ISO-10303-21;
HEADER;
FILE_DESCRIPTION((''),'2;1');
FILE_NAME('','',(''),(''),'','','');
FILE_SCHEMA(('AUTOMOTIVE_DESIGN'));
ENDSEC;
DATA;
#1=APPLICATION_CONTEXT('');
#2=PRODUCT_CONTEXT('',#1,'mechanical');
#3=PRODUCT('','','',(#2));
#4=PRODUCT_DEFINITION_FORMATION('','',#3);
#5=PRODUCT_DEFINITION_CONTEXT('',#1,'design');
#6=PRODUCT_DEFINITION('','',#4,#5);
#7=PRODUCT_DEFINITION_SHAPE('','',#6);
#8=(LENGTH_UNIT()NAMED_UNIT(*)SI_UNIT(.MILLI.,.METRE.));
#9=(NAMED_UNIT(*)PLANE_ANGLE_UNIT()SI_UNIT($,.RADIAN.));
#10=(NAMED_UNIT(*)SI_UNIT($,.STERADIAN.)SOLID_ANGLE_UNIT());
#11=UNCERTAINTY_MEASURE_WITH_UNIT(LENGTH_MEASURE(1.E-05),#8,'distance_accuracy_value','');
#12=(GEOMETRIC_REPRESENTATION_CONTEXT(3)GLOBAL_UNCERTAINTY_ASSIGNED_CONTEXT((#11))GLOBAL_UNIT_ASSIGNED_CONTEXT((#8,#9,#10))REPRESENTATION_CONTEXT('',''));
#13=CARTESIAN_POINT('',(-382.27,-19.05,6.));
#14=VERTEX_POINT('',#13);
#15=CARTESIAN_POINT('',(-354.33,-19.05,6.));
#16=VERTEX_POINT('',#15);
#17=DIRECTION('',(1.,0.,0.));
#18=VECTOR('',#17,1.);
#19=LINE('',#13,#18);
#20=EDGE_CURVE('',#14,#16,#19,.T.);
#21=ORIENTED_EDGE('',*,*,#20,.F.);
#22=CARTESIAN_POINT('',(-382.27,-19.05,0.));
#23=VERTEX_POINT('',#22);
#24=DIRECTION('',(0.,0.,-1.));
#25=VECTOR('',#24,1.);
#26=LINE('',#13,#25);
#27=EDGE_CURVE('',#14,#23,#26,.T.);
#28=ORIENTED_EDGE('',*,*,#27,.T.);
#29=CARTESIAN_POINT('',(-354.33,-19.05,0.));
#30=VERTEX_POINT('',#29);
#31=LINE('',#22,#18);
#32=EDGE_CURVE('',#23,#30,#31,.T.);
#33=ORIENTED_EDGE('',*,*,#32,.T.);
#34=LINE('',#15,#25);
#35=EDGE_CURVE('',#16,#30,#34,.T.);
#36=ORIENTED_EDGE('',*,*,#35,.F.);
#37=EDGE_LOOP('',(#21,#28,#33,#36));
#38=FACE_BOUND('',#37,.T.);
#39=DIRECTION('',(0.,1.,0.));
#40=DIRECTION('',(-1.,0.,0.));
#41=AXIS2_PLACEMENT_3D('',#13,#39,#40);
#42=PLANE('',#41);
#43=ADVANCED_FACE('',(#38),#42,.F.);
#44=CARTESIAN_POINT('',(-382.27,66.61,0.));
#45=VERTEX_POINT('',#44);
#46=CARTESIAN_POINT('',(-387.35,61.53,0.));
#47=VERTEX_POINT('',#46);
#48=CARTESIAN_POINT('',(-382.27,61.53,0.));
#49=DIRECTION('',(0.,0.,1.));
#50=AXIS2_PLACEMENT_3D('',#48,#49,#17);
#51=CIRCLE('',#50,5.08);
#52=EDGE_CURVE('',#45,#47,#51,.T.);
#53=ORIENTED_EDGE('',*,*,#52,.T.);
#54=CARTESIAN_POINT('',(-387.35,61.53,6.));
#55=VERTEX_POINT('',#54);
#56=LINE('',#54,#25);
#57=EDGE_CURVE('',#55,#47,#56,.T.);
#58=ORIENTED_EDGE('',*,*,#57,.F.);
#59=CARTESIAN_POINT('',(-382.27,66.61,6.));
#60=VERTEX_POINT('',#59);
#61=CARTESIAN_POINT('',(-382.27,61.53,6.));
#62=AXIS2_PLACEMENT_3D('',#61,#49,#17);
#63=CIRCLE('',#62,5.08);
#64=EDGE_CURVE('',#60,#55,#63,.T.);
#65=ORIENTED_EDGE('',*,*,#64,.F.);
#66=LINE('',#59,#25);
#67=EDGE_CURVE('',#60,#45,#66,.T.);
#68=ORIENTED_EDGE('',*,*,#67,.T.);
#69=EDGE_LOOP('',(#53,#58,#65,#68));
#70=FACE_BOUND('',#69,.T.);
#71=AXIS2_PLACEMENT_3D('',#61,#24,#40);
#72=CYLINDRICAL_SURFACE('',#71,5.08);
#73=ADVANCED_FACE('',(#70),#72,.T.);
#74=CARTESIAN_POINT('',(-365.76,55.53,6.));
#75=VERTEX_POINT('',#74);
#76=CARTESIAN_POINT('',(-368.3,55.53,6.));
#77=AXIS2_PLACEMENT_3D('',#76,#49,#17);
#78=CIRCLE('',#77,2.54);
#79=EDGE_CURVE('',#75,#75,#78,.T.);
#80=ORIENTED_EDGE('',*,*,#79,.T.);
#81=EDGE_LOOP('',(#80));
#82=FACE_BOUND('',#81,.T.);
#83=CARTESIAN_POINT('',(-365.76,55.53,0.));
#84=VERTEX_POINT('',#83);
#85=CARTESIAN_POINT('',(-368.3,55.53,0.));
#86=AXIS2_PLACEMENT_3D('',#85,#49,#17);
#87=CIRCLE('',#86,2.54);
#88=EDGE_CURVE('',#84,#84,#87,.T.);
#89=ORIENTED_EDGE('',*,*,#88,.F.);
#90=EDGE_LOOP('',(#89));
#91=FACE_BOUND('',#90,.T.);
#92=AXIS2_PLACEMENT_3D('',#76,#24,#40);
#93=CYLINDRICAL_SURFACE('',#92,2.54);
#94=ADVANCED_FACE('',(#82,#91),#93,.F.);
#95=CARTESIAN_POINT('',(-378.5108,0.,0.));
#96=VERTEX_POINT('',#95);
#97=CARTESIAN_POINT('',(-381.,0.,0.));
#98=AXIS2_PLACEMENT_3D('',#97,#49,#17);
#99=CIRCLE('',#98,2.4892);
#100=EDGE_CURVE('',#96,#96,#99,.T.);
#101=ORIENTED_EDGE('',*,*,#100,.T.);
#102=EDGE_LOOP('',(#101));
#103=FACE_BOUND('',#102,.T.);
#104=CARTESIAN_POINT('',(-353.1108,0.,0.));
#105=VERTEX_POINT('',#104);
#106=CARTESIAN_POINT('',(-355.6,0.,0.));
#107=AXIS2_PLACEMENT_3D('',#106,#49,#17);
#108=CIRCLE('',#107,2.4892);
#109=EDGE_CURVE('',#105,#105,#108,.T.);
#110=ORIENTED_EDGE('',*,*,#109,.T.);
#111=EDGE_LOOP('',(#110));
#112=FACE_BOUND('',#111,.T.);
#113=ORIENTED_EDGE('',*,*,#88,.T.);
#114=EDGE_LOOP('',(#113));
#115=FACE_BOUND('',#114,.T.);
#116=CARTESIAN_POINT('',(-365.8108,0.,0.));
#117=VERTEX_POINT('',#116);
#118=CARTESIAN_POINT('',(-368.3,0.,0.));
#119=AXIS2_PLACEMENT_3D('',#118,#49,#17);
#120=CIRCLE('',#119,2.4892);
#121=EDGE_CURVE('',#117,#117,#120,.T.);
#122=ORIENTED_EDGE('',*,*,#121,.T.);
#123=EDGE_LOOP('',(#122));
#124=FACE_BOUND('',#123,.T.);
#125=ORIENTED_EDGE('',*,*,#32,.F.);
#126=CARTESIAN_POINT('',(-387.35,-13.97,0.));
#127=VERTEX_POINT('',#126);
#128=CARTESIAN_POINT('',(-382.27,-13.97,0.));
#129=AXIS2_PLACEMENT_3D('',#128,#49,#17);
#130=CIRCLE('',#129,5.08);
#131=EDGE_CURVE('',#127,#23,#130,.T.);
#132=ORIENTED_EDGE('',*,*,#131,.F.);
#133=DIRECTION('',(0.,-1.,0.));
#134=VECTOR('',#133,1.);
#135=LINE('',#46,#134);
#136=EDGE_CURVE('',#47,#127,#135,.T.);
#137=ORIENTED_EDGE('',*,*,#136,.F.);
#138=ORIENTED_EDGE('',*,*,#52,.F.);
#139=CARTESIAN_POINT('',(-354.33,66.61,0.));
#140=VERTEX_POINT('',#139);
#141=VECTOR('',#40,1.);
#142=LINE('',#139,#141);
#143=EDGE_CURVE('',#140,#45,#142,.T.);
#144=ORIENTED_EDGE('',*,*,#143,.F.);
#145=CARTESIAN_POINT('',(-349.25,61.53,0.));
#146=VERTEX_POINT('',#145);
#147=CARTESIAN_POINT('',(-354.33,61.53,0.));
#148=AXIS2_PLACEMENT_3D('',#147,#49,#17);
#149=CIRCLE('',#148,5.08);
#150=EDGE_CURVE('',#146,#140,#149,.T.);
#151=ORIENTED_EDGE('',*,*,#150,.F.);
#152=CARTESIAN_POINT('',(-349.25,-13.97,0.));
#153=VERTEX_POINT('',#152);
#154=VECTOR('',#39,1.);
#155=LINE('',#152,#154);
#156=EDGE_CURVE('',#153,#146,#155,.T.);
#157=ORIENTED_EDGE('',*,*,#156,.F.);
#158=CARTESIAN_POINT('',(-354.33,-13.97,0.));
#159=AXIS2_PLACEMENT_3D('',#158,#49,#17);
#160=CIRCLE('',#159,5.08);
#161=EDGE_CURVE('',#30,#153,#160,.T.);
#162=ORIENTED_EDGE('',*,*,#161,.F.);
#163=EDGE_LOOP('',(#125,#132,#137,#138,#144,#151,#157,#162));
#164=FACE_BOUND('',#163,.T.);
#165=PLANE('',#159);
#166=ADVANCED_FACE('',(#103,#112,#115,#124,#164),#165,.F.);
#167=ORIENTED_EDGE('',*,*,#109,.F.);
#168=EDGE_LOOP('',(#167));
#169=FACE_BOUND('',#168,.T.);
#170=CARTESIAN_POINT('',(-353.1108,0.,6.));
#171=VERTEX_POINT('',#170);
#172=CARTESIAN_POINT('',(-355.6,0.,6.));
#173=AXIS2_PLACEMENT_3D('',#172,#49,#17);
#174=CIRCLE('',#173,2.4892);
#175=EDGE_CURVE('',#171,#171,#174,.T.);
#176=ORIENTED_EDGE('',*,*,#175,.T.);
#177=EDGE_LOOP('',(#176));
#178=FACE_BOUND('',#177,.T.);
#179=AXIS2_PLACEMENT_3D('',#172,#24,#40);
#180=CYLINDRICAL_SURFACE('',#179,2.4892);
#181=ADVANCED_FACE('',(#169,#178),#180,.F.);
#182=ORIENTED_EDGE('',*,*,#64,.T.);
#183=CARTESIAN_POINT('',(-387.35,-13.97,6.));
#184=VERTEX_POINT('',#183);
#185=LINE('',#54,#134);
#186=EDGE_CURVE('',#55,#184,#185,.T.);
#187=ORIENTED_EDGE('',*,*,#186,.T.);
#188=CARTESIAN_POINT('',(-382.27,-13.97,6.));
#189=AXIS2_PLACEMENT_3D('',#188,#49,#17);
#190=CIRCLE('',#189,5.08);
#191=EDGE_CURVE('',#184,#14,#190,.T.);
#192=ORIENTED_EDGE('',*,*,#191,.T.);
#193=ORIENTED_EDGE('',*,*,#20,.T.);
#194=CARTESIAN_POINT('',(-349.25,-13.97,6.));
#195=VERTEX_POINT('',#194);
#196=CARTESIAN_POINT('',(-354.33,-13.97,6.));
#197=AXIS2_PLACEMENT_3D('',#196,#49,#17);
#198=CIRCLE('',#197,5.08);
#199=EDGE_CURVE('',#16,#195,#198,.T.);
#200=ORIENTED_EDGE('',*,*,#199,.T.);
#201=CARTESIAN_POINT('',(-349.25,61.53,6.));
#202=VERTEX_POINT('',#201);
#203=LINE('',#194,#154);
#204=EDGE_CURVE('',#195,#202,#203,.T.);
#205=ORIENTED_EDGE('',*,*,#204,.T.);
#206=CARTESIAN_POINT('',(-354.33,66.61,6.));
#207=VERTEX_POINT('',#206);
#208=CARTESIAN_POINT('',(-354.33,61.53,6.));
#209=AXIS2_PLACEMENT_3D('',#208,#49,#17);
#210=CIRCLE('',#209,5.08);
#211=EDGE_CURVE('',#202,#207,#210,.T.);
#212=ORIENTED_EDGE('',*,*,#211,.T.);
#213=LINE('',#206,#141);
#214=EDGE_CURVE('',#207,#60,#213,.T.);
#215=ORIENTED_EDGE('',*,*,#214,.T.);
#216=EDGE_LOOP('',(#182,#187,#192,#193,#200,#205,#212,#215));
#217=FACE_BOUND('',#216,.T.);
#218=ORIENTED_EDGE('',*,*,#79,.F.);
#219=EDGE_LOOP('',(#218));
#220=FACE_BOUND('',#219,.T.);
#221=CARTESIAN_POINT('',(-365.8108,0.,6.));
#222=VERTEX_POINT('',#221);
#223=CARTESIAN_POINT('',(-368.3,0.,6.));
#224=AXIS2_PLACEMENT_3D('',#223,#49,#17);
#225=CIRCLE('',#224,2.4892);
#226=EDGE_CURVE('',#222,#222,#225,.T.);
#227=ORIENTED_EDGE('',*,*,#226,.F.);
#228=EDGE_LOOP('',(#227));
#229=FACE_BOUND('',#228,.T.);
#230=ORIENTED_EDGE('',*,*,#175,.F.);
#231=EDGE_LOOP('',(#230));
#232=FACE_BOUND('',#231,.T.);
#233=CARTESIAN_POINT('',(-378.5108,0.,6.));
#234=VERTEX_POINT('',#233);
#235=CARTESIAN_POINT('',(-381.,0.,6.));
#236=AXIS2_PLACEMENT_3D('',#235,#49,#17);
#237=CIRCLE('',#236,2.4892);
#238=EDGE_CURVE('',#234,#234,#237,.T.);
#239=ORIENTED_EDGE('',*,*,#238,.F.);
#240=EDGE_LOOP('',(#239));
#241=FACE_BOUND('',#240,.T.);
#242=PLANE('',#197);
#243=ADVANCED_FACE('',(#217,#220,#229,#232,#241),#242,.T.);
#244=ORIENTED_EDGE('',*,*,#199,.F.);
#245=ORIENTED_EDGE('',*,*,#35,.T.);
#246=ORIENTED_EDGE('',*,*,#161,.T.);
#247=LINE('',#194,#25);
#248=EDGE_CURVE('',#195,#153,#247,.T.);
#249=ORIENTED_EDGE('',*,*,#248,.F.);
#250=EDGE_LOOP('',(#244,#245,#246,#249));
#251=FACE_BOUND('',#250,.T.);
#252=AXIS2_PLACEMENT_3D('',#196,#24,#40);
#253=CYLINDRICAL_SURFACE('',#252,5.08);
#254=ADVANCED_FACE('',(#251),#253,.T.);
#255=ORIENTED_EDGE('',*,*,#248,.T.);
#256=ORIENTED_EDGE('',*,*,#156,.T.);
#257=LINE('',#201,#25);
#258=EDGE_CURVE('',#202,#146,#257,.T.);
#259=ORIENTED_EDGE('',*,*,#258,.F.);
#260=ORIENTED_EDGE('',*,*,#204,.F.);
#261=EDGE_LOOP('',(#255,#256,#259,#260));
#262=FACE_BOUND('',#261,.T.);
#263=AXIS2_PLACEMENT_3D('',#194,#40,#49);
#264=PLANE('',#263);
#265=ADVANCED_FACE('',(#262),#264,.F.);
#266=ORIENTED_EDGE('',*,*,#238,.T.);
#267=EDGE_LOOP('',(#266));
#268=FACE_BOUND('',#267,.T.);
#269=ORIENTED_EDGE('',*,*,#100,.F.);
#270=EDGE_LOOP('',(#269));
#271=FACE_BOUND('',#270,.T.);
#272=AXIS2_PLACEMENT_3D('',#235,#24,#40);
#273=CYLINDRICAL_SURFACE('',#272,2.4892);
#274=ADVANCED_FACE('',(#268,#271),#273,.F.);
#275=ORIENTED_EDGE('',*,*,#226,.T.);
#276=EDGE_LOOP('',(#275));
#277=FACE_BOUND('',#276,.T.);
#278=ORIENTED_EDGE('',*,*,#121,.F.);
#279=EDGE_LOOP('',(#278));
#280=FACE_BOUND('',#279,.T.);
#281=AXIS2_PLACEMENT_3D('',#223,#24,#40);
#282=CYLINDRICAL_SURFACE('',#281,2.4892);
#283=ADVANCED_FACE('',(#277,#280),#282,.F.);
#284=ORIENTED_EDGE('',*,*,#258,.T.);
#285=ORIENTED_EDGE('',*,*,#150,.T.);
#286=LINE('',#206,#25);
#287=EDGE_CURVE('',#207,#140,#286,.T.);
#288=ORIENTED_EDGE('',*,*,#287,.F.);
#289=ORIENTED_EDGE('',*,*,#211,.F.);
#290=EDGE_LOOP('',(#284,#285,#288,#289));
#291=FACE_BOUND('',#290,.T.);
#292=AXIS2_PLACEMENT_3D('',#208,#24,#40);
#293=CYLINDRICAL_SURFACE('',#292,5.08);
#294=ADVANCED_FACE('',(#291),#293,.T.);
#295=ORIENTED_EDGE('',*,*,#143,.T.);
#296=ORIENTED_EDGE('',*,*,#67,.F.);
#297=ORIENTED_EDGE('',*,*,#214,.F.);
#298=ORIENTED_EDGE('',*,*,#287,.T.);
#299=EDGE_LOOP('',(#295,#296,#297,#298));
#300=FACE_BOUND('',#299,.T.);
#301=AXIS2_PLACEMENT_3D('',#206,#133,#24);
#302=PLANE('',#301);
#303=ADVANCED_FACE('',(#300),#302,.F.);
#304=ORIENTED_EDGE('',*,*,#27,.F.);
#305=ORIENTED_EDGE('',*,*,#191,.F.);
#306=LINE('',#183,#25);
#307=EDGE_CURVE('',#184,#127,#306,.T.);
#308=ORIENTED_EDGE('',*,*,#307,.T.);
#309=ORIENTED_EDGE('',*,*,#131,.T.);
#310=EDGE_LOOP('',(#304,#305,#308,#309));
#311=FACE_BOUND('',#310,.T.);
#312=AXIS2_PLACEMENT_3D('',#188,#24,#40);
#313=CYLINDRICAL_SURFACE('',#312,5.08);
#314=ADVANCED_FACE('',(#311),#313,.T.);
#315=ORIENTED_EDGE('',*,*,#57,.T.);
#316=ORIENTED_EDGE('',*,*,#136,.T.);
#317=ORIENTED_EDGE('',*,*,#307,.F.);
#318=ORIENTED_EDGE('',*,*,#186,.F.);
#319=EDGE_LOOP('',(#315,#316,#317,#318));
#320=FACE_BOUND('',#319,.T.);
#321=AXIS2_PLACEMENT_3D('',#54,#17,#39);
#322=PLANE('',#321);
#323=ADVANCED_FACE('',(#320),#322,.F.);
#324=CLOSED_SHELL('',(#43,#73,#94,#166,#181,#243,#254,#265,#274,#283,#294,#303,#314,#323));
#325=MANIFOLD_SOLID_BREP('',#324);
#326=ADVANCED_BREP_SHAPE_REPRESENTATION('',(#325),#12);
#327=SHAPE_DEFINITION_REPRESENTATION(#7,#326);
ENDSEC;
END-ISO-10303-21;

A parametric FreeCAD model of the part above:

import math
import FreeCAD as App
import Part
import Sketcher

V = App.Vector
Q = App.Units.Quantity

doc = App.newDocument("Part")
body = doc.addObject("PartDesign::Body", "Body")

# Sketch on XY plane
sketch1 = body.newObject("Sketcher::SketchObject", "Sketch")
sketch1.AttachmentSupport = (doc.getObject("XY_Plane"), [""])
sketch1.MapMode = "FlatFace"
sketch1.addGeometry([
    Part.LineSegment(V(-382.3, -19.1, 0), V(-354.3, -19.1, 0)),  # 0
    Part.ArcOfCircle(Part.Circle(V(-354.3, -14, 0), V(0, 0, 1), 5.1), math.radians(-90), math.radians(0)),  # 1
    Part.LineSegment(V(-349.2, -14, 0), V(-349.2, 61.5, 0)),  # 2
    Part.ArcOfCircle(Part.Circle(V(-354.3, 61.5, 0), V(0, 0, 1), 5.1), math.radians(0), math.radians(90)),  # 3
    Part.LineSegment(V(-354.3, 66.6, 0), V(-382.3, 66.6, 0)),  # 4
    Part.ArcOfCircle(Part.Circle(V(-382.3, 61.5, 0), V(0, 0, 1), 5.1), math.radians(90), math.radians(180)),  # 5
    Part.LineSegment(V(-387.4, 61.5, 0), V(-387.4, -14, 0)),  # 6
    Part.ArcOfCircle(Part.Circle(V(-382.3, -14, 0), V(0, 0, 1), 5.1), math.radians(-180), math.radians(-90)),  # 7
    Part.Circle(V(-381, 0, 0), V(0, 0, 1), 2.5),  # 8
    Part.Circle(V(-368.3, 0, 0), V(0, 0, 1), 2.5),  # 9
    Part.Circle(V(-355.6, 0, 0), V(0, 0, 1), 2.5),  # 10
    Part.Circle(V(-368.3, 55.5, 0), V(0, 0, 1), 2.5),  # 11
], False)
sketch1.addConstraint([
    Sketcher.Constraint("Tangent", 0, 2, 1, 1),
    Sketcher.Constraint("Tangent", 1, 2, 2, 1),
    Sketcher.Constraint("Tangent", 2, 2, 3, 1),
    Sketcher.Constraint("Tangent", 3, 2, 4, 1),
    Sketcher.Constraint("Tangent", 4, 2, 5, 1),
    Sketcher.Constraint("Tangent", 5, 2, 6, 1),
    Sketcher.Constraint("Tangent", 6, 2, 7, 1),
    Sketcher.Constraint("Tangent", 7, 2, 0, 1),
    Sketcher.Constraint("Horizontal", 0),
    Sketcher.Constraint("Vertical", 2),
    Sketcher.Constraint("Horizontal", 4),
    Sketcher.Constraint("Vertical", 6),
    Sketcher.Constraint("Equal", 1, 3),
    Sketcher.Constraint("Equal", 3, 5),
    Sketcher.Constraint("Equal", 5, 7),
    Sketcher.Constraint("Equal", 8, 9),
    Sketcher.Constraint("Equal", 9, 10),
    Sketcher.Constraint("PointOnObject", 8, 3, -1),
    Sketcher.Constraint("PointOnObject", 9, 3, -1),
    Sketcher.Constraint("PointOnObject", 10, 3, -1),
    Sketcher.Constraint("Vertical", 9, 3, 11, 3),
    Sketcher.Constraint("Diameter", 11, Q("0.2 in")),
    Sketcher.Constraint("Radius", 1, Q("0.2 in")),
    Sketcher.Constraint("Diameter", 8, Q("0.196 in")),
    Sketcher.Constraint("DistanceX", 0, 1, 0, 2, Q("1.1 in")),
    Sketcher.Constraint("DistanceX", 8, 3, -1, 1, Q("15 in")),
    Sketcher.Constraint("DistanceX", 10, 3, -1, 1, Q("14 in")),
    Sketcher.Constraint("DistanceX", 9, 3, -1, 1, Q("14.5 in")),
    Sketcher.Constraint("DistanceX", 1, 3, -1, 1, Q("13.95 in")),
    Sketcher.Constraint("DistanceY", 1, 3, -1, 1, Q("0.55 in")),
    Sketcher.Constraint("DistanceY", 2, 1, 2, 2, Q("75.5 mm")),
    Sketcher.Constraint("DistanceY", -1, 1, 11, 3, Q("55.53 mm")),
])
pad1 = body.newObject("PartDesign::Pad", "Pad")
pad1.Profile = sketch1
pad1.Length = 6

doc.recompute()
